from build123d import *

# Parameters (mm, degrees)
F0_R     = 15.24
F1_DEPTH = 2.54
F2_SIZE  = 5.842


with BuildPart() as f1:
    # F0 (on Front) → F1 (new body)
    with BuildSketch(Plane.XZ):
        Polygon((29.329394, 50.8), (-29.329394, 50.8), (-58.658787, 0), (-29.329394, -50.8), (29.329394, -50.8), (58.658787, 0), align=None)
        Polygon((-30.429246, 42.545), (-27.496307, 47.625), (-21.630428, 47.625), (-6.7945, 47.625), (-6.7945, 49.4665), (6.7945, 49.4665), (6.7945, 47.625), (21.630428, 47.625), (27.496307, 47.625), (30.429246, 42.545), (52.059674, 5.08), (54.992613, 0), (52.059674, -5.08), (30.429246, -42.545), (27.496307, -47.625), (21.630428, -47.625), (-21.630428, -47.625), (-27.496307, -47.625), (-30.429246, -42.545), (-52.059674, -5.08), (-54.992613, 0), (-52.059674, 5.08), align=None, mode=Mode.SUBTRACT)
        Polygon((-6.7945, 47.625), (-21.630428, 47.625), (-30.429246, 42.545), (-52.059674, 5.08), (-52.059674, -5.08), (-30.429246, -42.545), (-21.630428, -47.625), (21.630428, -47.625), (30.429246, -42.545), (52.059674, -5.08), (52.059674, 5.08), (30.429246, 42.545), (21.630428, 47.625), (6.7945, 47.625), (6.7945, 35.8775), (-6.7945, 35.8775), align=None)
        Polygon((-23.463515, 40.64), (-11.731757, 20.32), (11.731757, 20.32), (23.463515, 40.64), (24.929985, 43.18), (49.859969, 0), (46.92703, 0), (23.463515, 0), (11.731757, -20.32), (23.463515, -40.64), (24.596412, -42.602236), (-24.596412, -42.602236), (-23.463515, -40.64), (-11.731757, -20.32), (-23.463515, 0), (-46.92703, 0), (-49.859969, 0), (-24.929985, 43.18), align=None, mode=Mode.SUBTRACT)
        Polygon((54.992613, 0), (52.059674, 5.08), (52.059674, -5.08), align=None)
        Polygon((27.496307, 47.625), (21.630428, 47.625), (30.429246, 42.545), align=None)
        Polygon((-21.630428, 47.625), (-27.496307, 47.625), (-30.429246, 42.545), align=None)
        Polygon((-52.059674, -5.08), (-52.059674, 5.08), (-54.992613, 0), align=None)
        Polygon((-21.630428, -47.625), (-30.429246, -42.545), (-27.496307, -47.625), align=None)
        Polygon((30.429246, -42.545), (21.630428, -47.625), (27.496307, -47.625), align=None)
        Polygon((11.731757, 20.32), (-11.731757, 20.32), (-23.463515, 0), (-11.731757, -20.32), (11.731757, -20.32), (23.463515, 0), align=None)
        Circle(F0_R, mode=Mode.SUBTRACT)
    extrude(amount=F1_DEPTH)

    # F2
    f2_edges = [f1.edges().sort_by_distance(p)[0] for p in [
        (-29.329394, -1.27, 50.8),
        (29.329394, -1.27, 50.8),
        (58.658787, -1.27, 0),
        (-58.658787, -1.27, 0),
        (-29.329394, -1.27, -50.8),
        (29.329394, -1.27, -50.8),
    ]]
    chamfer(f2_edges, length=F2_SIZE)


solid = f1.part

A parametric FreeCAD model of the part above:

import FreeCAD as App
import Part
import Sketcher
Q = App.Units.Quantity


def edges_at(feature, points):
    """Names of the edges that pass closest to the given points."""
    edges = feature.Shape.Edges
    near = lambda p: min(range(len(edges)), key=lambda i: edges[i].distToShape(Part.Vertex(*p))[0])
    return sorted({f"Edge{near(p) + 1}" for p in points})

doc = App.newDocument("Part")
params = doc.addObject("Spreadsheet::Sheet", "Params")
for row, (alias, value) in enumerate([
    ("sketch1_diameter", "1.2 in"),
    ("sketch1_width", "0.535 in"),
    ("pad1_length", "0.1 in"),
    ("chamfer_size", "0.23 in"),
], start=1):
    params.set(f"A{row}", alias)
    params.set(f"B{row}", "=" + value)
    params.setAlias(f"B{row}", alias)

body = doc.addObject("PartDesign::Body", "Body")

sketch1 = body.newObject("Sketcher::SketchObject", "Sketch")
sketch1.AttachmentSupport = (doc.getObject("XZ_Plane"), [""])
sketch1.MapMode = "FlatFace"
sketch1.addGeometry([
    Part.LineSegment(App.Vector(29.3, 50.8, 0), App.Vector(-29.3, 50.8, 0)),
    Part.LineSegment(App.Vector(-29.3, 50.8, 0), App.Vector(-58.7, 0, 0)),
    Part.LineSegment(App.Vector(-58.7, 0, 0), App.Vector(-29.3, -50.8, 0)),
    Part.LineSegment(App.Vector(-29.3, -50.8, 0), App.Vector(29.3, -50.8, 0)),
    Part.LineSegment(App.Vector(29.3, -50.8, 0), App.Vector(58.7, 0, 0)),
    Part.LineSegment(App.Vector(58.7, 0, 0), App.Vector(29.3, 50.8, 0)),
    Part.LineSegment(App.Vector(11.7, -20.3, 0), App.Vector(23.5, -40.6, 0)),
    Part.LineSegment(App.Vector(23.5, -40.6, 0), App.Vector(24.6, -42.6, 0)),
    Part.LineSegment(App.Vector(24.6, -42.6, 0), App.Vector(-24.6, -42.6, 0)),
    Part.LineSegment(App.Vector(-24.6, -42.6, 0), App.Vector(-23.5, -40.6, 0)),
    Part.LineSegment(App.Vector(-23.5, -40.6, 0), App.Vector(-11.7, -20.3, 0)),
    Part.LineSegment(App.Vector(-11.7, -20.3, 0), App.Vector(11.7, -20.3, 0)),
    Part.Circle(App.Vector(0, 0, 0), App.Vector(0, 0, 1), 15.2),
    Part.LineSegment(App.Vector(-24.9, 43.2, 0), App.Vector(-23.5, 40.6, 0)),
    Part.LineSegment(App.Vector(-23.5, 40.6, 0), App.Vector(-11.7, 20.3, 0)),
    Part.LineSegment(App.Vector(-11.7, 20.3, 0), App.Vector(-23.5, 0, 0)),
    Part.LineSegment(App.Vector(-23.5, 0, 0), App.Vector(-49.9, 0, 0)),
    Part.LineSegment(App.Vector(-49.9, 0, 0), App.Vector(-24.9, 43.2, 0)),
    Part.LineSegment(App.Vector(11.7, 20.3, 0), App.Vector(23.5, 40.6, 0)),
    Part.LineSegment(App.Vector(23.5, 40.6, 0), App.Vector(24.9, 43.2, 0)),
    Part.LineSegment(App.Vector(24.9, 43.2, 0), App.Vector(49.9, 0, 0)),
    Part.LineSegment(App.Vector(49.9, 0, 0), App.Vector(23.5, 0, 0)),
    Part.LineSegment(App.Vector(23.5, 0, 0), App.Vector(11.7, 20.3, 0)),
    Part.LineSegment(App.Vector(-6.8, 49.5, 0), App.Vector(6.8, 49.5, 0)),
    Part.LineSegment(App.Vector(6.8, 49.5, 0), App.Vector(6.8, 35.9, 0)),
    Part.LineSegment(App.Vector(6.8, 35.9, 0), App.Vector(-6.8, 35.9, 0)),
    Part.LineSegment(App.Vector(-6.8, 35.9, 0), App.Vector(-6.8, 49.5, 0)),
], False)
sketch1.addConstraint([
    Sketcher.Constraint("Coincident", 0, 2, 1, 1),
    Sketcher.Constraint("Coincident", 1, 2, 2, 1),
    Sketcher.Constraint("Coincident", 2, 2, 3, 1),
    Sketcher.Constraint("Coincident", 3, 2, 4, 1),
    Sketcher.Constraint("Coincident", 4, 2, 5, 1),
    Sketcher.Constraint("Coincident", 5, 2, 0, 1),
    Sketcher.Constraint("Coincident", 6, 2, 7, 1),
    Sketcher.Constraint("Coincident", 7, 2, 8, 1),
    Sketcher.Constraint("Coincident", 8, 2, 9, 1),
    Sketcher.Constraint("Coincident", 9, 2, 10, 1),
    Sketcher.Constraint("Coincident", 10, 2, 11, 1),
    Sketcher.Constraint("Coincident", 11, 2, 6, 1),
    Sketcher.Constraint("Coincident", 13, 2, 14, 1),
    Sketcher.Constraint("Coincident", 14, 2, 15, 1),
    Sketcher.Constraint("Coincident", 15, 2, 16, 1),
    Sketcher.Constraint("Coincident", 16, 2, 17, 1),
    Sketcher.Constraint("Coincident", 17, 2, 13, 1),
    Sketcher.Constraint("Coincident", 18, 2, 19, 1),
    Sketcher.Constraint("Coincident", 19, 2, 20, 1),
    Sketcher.Constraint("Coincident", 20, 2, 21, 1),
    Sketcher.Constraint("Coincident", 21, 2, 22, 1),
    Sketcher.Constraint("Coincident", 22, 2, 18, 1),
    Sketcher.Constraint("Coincident", 23, 2, 24, 1),
    Sketcher.Constraint("Coincident", 24, 2, 25, 1),
    Sketcher.Constraint("Coincident", 25, 2, 26, 1),
    Sketcher.Constraint("Coincident", 26, 2, 23, 1),
    Sketcher.Constraint("Horizontal", 0),
    Sketcher.Constraint("Horizontal", 3),
    Sketcher.Constraint("Horizontal", 8),
    Sketcher.Constraint("Horizontal", 11),
    Sketcher.Constraint("Horizontal", 16),
    Sketcher.Constraint("Horizontal", 21),
    Sketcher.Constraint("Horizontal", 23),
    Sketcher.Constraint("Vertical", 24),
    Sketcher.Constraint("Horizontal", 25),
    Sketcher.Constraint("Vertical", 26),
    Sketcher.Constraint("Coincident", 12, 3, -1, 1),
    Sketcher.Constraint("Symmetric", 0, 2, 3, 2, -1, 1),
    Sketcher.Constraint("Symmetric", 1, 2, 4, 2, -1, 1),
    Sketcher.Constraint("Symmetric", 6, 2, 13, 2, -1, 1),
    Sketcher.Constraint("Symmetric", 11, 2, 14, 2, -1, 1),
    Sketcher.Constraint("Symmetric", 9, 2, 18, 2, -1, 1),
    Sketcher.Constraint("Symmetric", 16, 2, 20, 2, -1, 1),
    Sketcher.Constraint("Symmetric", 10, 2, 22, 2, -1, 1),
    Sketcher.Constraint("Symmetric", 6, 2, 9, 2, -2),
    Sketcher.Constraint("Symmetric", 17, 2, 19, 2, -2),
    Sketcher.Constraint("Symmetric", 15, 2, 21, 2, -2),
    Sketcher.Constraint("PointOnObject", 1, 2, -1),
    Sketcher.Constraint("Parallel", 2, 5),
    Sketcher.Constraint("Parallel", 5, 6),
    Sketcher.Constraint("Parallel", 6, 7),
    Sketcher.Constraint("Parallel", 4, 9),
    Sketcher.Constraint("Parallel", 9, 10),
    Sketcher.Constraint("Parallel", 7, 13),
    Sketcher.Constraint("Parallel", 10, 15),
    Sketcher.Constraint("Parallel", 15, 17),
    Sketcher.Constraint("Parallel", 18, 19),
    Sketcher.Constraint("Vertical", 13, 2, 15, 2),
    Sketcher.Constraint("Equal", 25, 24),
    Sketcher.Constraint("Diameter", 12, Q("1.2 in")),
    Sketcher.Constraint("DistanceY", -1, 1, 0, 2, Q("2 in")),
    Sketcher.Constraint("Angle", 1, Q("-119.999999 deg")),
    Sketcher.Constraint("DistanceY", 6, 2, -1, 1, Q("1.6 in")),
    Sketcher.Constraint("DistanceY", -1, 1, 17, 2, Q("1.7 in")),
    Sketcher.Constraint("DistanceX", 23, 1, 23, 2, Q("0.535 in")),
    Sketcher.Constraint("DistanceY", 24, 2, 18, 2, Q("0.1875 in")),
    Sketcher.Constraint("DistanceX", -1, 1, 23, 2, Q("0.2675 in")),
    Sketcher.Constraint("DistanceX", 1, 2, 6, 2, 82.122302),
    Sketcher.Constraint("DistanceX", 17, 2, 18, 2, 48.3935),
    Sketcher.Constraint("DistanceX", 8, 2, 8, 1, 49.192824),
])
sketch1.setExpression("Constraints[59]", "Params.sketch1_diameter")
sketch1.setExpression("Constraints[64]", "Params.sketch1_width")
pad1 = body.newObject("PartDesign::Pad", "Pad")
pad1.Profile = sketch1
pad1.setExpression("Length", "Params.pad1_length")
doc.recompute()

chamfer = body.newObject("PartDesign::Chamfer", "Chamfer")
chamfer.Base = (pad1, edges_at(pad1, [
    (-29.329, -1.27, 50.8),
    (29.329, -1.27, 50.8),
    (58.659, -1.27, 0),
    (-58.659, -1.27, 0),
    (-29.329, -1.27, -50.8),
    (29.329, -1.27, -50.8),
]))
chamfer.setExpression("Size", "Params.chamfer_size")

doc.recompute()
